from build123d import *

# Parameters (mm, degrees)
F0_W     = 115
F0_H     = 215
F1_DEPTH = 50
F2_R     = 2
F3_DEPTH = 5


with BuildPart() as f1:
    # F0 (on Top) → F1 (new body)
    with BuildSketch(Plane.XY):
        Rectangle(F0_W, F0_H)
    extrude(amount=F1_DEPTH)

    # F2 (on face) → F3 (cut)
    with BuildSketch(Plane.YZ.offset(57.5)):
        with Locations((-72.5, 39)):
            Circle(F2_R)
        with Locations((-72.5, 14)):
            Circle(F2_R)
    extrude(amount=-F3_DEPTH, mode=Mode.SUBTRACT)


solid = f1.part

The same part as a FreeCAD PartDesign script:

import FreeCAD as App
import Part
import Sketcher
from FreeCAD import Vector
Q = App.Units.Quantity


def add_polygon(sketch, points):
    """Adds a closed chain of lines whose ends are joined by coincident constraints."""
    first, n = sketch.GeometryCount, len(points)
    for a, b in zip(points, points[1:] + points[:1]):
        sketch.addGeometry(Part.LineSegment(App.Vector(*a, 0), App.Vector(*b, 0)), False)
    for i in range(n):
        sketch.addConstraint(Sketcher.Constraint("Coincident", first + i, 2, first + (i + 1) % n, 1))

doc = App.newDocument("Part")
body = doc.addObject("PartDesign::Body", "Body")

sketch1 = body.newObject("Sketcher::SketchObject", "Sketch")
sketch1.AttachmentSupport = (doc.getObject("XY_Plane"), [""])
sketch1.MapMode = "FlatFace"
add_polygon(sketch1, [(-58, 108), (-58, -108), (58, -108), (58, 108)])
sketch1.addConstraint([
    Sketcher.Constraint("Vertical", 0),
    Sketcher.Constraint("Horizontal", 1),
    Sketcher.Constraint("Vertical", 2),
    Sketcher.Constraint("Horizontal", 3),
    Sketcher.Constraint("Symmetric", 0, 2, 2, 2, -1, 1),
    Sketcher.Constraint("DistanceX", 1, 1, 1, 2, Q("115 mm")),
    Sketcher.Constraint("DistanceY", 0, 2, 0, 1, Q("215 mm")),
])
pad1 = body.newObject("PartDesign::Pad", "Pad")
pad1.Profile = sketch1
pad1.Length = 50

sketch2 = body.newObject("Sketcher::SketchObject", "Sketch001")
sketch2.AttachmentSupport = (doc.getObject("YZ_Plane"), [""])
sketch2.MapMode = "FlatFace"
sketch2.AttachmentOffset = App.Placement(Vector(0, 0, 57.5), App.Rotation())
sketch2.addGeometry([
    Part.Circle(Vector(-72.5, 39, 0), Vector(0, 0, 1), 2),
    Part.Circle(Vector(-72.5, 14, 0), Vector(0, 0, 1), 2),
], False)
sketch2.addConstraint([
    Sketcher.Constraint("Equal", 0, 1),
    Sketcher.Constraint("Vertical", 0, 3, 1, 3),
    Sketcher.Constraint("Diameter", 0, Q("4 mm")),
    Sketcher.Constraint("DistanceY", -1, 1, 0, 3, Q("39 mm")),
    Sketcher.Constraint("DistanceY", -1, 1, 1, 3, Q("14 mm")),
    Sketcher.Constraint("DistanceX", 0, 3, -1, 1, Q("72.5 mm")),
])
pocket1 = body.newObject("PartDesign::Pocket", "Pocket")
pocket1.Profile = sketch2
pocket1.Length = 5

doc.recompute()
